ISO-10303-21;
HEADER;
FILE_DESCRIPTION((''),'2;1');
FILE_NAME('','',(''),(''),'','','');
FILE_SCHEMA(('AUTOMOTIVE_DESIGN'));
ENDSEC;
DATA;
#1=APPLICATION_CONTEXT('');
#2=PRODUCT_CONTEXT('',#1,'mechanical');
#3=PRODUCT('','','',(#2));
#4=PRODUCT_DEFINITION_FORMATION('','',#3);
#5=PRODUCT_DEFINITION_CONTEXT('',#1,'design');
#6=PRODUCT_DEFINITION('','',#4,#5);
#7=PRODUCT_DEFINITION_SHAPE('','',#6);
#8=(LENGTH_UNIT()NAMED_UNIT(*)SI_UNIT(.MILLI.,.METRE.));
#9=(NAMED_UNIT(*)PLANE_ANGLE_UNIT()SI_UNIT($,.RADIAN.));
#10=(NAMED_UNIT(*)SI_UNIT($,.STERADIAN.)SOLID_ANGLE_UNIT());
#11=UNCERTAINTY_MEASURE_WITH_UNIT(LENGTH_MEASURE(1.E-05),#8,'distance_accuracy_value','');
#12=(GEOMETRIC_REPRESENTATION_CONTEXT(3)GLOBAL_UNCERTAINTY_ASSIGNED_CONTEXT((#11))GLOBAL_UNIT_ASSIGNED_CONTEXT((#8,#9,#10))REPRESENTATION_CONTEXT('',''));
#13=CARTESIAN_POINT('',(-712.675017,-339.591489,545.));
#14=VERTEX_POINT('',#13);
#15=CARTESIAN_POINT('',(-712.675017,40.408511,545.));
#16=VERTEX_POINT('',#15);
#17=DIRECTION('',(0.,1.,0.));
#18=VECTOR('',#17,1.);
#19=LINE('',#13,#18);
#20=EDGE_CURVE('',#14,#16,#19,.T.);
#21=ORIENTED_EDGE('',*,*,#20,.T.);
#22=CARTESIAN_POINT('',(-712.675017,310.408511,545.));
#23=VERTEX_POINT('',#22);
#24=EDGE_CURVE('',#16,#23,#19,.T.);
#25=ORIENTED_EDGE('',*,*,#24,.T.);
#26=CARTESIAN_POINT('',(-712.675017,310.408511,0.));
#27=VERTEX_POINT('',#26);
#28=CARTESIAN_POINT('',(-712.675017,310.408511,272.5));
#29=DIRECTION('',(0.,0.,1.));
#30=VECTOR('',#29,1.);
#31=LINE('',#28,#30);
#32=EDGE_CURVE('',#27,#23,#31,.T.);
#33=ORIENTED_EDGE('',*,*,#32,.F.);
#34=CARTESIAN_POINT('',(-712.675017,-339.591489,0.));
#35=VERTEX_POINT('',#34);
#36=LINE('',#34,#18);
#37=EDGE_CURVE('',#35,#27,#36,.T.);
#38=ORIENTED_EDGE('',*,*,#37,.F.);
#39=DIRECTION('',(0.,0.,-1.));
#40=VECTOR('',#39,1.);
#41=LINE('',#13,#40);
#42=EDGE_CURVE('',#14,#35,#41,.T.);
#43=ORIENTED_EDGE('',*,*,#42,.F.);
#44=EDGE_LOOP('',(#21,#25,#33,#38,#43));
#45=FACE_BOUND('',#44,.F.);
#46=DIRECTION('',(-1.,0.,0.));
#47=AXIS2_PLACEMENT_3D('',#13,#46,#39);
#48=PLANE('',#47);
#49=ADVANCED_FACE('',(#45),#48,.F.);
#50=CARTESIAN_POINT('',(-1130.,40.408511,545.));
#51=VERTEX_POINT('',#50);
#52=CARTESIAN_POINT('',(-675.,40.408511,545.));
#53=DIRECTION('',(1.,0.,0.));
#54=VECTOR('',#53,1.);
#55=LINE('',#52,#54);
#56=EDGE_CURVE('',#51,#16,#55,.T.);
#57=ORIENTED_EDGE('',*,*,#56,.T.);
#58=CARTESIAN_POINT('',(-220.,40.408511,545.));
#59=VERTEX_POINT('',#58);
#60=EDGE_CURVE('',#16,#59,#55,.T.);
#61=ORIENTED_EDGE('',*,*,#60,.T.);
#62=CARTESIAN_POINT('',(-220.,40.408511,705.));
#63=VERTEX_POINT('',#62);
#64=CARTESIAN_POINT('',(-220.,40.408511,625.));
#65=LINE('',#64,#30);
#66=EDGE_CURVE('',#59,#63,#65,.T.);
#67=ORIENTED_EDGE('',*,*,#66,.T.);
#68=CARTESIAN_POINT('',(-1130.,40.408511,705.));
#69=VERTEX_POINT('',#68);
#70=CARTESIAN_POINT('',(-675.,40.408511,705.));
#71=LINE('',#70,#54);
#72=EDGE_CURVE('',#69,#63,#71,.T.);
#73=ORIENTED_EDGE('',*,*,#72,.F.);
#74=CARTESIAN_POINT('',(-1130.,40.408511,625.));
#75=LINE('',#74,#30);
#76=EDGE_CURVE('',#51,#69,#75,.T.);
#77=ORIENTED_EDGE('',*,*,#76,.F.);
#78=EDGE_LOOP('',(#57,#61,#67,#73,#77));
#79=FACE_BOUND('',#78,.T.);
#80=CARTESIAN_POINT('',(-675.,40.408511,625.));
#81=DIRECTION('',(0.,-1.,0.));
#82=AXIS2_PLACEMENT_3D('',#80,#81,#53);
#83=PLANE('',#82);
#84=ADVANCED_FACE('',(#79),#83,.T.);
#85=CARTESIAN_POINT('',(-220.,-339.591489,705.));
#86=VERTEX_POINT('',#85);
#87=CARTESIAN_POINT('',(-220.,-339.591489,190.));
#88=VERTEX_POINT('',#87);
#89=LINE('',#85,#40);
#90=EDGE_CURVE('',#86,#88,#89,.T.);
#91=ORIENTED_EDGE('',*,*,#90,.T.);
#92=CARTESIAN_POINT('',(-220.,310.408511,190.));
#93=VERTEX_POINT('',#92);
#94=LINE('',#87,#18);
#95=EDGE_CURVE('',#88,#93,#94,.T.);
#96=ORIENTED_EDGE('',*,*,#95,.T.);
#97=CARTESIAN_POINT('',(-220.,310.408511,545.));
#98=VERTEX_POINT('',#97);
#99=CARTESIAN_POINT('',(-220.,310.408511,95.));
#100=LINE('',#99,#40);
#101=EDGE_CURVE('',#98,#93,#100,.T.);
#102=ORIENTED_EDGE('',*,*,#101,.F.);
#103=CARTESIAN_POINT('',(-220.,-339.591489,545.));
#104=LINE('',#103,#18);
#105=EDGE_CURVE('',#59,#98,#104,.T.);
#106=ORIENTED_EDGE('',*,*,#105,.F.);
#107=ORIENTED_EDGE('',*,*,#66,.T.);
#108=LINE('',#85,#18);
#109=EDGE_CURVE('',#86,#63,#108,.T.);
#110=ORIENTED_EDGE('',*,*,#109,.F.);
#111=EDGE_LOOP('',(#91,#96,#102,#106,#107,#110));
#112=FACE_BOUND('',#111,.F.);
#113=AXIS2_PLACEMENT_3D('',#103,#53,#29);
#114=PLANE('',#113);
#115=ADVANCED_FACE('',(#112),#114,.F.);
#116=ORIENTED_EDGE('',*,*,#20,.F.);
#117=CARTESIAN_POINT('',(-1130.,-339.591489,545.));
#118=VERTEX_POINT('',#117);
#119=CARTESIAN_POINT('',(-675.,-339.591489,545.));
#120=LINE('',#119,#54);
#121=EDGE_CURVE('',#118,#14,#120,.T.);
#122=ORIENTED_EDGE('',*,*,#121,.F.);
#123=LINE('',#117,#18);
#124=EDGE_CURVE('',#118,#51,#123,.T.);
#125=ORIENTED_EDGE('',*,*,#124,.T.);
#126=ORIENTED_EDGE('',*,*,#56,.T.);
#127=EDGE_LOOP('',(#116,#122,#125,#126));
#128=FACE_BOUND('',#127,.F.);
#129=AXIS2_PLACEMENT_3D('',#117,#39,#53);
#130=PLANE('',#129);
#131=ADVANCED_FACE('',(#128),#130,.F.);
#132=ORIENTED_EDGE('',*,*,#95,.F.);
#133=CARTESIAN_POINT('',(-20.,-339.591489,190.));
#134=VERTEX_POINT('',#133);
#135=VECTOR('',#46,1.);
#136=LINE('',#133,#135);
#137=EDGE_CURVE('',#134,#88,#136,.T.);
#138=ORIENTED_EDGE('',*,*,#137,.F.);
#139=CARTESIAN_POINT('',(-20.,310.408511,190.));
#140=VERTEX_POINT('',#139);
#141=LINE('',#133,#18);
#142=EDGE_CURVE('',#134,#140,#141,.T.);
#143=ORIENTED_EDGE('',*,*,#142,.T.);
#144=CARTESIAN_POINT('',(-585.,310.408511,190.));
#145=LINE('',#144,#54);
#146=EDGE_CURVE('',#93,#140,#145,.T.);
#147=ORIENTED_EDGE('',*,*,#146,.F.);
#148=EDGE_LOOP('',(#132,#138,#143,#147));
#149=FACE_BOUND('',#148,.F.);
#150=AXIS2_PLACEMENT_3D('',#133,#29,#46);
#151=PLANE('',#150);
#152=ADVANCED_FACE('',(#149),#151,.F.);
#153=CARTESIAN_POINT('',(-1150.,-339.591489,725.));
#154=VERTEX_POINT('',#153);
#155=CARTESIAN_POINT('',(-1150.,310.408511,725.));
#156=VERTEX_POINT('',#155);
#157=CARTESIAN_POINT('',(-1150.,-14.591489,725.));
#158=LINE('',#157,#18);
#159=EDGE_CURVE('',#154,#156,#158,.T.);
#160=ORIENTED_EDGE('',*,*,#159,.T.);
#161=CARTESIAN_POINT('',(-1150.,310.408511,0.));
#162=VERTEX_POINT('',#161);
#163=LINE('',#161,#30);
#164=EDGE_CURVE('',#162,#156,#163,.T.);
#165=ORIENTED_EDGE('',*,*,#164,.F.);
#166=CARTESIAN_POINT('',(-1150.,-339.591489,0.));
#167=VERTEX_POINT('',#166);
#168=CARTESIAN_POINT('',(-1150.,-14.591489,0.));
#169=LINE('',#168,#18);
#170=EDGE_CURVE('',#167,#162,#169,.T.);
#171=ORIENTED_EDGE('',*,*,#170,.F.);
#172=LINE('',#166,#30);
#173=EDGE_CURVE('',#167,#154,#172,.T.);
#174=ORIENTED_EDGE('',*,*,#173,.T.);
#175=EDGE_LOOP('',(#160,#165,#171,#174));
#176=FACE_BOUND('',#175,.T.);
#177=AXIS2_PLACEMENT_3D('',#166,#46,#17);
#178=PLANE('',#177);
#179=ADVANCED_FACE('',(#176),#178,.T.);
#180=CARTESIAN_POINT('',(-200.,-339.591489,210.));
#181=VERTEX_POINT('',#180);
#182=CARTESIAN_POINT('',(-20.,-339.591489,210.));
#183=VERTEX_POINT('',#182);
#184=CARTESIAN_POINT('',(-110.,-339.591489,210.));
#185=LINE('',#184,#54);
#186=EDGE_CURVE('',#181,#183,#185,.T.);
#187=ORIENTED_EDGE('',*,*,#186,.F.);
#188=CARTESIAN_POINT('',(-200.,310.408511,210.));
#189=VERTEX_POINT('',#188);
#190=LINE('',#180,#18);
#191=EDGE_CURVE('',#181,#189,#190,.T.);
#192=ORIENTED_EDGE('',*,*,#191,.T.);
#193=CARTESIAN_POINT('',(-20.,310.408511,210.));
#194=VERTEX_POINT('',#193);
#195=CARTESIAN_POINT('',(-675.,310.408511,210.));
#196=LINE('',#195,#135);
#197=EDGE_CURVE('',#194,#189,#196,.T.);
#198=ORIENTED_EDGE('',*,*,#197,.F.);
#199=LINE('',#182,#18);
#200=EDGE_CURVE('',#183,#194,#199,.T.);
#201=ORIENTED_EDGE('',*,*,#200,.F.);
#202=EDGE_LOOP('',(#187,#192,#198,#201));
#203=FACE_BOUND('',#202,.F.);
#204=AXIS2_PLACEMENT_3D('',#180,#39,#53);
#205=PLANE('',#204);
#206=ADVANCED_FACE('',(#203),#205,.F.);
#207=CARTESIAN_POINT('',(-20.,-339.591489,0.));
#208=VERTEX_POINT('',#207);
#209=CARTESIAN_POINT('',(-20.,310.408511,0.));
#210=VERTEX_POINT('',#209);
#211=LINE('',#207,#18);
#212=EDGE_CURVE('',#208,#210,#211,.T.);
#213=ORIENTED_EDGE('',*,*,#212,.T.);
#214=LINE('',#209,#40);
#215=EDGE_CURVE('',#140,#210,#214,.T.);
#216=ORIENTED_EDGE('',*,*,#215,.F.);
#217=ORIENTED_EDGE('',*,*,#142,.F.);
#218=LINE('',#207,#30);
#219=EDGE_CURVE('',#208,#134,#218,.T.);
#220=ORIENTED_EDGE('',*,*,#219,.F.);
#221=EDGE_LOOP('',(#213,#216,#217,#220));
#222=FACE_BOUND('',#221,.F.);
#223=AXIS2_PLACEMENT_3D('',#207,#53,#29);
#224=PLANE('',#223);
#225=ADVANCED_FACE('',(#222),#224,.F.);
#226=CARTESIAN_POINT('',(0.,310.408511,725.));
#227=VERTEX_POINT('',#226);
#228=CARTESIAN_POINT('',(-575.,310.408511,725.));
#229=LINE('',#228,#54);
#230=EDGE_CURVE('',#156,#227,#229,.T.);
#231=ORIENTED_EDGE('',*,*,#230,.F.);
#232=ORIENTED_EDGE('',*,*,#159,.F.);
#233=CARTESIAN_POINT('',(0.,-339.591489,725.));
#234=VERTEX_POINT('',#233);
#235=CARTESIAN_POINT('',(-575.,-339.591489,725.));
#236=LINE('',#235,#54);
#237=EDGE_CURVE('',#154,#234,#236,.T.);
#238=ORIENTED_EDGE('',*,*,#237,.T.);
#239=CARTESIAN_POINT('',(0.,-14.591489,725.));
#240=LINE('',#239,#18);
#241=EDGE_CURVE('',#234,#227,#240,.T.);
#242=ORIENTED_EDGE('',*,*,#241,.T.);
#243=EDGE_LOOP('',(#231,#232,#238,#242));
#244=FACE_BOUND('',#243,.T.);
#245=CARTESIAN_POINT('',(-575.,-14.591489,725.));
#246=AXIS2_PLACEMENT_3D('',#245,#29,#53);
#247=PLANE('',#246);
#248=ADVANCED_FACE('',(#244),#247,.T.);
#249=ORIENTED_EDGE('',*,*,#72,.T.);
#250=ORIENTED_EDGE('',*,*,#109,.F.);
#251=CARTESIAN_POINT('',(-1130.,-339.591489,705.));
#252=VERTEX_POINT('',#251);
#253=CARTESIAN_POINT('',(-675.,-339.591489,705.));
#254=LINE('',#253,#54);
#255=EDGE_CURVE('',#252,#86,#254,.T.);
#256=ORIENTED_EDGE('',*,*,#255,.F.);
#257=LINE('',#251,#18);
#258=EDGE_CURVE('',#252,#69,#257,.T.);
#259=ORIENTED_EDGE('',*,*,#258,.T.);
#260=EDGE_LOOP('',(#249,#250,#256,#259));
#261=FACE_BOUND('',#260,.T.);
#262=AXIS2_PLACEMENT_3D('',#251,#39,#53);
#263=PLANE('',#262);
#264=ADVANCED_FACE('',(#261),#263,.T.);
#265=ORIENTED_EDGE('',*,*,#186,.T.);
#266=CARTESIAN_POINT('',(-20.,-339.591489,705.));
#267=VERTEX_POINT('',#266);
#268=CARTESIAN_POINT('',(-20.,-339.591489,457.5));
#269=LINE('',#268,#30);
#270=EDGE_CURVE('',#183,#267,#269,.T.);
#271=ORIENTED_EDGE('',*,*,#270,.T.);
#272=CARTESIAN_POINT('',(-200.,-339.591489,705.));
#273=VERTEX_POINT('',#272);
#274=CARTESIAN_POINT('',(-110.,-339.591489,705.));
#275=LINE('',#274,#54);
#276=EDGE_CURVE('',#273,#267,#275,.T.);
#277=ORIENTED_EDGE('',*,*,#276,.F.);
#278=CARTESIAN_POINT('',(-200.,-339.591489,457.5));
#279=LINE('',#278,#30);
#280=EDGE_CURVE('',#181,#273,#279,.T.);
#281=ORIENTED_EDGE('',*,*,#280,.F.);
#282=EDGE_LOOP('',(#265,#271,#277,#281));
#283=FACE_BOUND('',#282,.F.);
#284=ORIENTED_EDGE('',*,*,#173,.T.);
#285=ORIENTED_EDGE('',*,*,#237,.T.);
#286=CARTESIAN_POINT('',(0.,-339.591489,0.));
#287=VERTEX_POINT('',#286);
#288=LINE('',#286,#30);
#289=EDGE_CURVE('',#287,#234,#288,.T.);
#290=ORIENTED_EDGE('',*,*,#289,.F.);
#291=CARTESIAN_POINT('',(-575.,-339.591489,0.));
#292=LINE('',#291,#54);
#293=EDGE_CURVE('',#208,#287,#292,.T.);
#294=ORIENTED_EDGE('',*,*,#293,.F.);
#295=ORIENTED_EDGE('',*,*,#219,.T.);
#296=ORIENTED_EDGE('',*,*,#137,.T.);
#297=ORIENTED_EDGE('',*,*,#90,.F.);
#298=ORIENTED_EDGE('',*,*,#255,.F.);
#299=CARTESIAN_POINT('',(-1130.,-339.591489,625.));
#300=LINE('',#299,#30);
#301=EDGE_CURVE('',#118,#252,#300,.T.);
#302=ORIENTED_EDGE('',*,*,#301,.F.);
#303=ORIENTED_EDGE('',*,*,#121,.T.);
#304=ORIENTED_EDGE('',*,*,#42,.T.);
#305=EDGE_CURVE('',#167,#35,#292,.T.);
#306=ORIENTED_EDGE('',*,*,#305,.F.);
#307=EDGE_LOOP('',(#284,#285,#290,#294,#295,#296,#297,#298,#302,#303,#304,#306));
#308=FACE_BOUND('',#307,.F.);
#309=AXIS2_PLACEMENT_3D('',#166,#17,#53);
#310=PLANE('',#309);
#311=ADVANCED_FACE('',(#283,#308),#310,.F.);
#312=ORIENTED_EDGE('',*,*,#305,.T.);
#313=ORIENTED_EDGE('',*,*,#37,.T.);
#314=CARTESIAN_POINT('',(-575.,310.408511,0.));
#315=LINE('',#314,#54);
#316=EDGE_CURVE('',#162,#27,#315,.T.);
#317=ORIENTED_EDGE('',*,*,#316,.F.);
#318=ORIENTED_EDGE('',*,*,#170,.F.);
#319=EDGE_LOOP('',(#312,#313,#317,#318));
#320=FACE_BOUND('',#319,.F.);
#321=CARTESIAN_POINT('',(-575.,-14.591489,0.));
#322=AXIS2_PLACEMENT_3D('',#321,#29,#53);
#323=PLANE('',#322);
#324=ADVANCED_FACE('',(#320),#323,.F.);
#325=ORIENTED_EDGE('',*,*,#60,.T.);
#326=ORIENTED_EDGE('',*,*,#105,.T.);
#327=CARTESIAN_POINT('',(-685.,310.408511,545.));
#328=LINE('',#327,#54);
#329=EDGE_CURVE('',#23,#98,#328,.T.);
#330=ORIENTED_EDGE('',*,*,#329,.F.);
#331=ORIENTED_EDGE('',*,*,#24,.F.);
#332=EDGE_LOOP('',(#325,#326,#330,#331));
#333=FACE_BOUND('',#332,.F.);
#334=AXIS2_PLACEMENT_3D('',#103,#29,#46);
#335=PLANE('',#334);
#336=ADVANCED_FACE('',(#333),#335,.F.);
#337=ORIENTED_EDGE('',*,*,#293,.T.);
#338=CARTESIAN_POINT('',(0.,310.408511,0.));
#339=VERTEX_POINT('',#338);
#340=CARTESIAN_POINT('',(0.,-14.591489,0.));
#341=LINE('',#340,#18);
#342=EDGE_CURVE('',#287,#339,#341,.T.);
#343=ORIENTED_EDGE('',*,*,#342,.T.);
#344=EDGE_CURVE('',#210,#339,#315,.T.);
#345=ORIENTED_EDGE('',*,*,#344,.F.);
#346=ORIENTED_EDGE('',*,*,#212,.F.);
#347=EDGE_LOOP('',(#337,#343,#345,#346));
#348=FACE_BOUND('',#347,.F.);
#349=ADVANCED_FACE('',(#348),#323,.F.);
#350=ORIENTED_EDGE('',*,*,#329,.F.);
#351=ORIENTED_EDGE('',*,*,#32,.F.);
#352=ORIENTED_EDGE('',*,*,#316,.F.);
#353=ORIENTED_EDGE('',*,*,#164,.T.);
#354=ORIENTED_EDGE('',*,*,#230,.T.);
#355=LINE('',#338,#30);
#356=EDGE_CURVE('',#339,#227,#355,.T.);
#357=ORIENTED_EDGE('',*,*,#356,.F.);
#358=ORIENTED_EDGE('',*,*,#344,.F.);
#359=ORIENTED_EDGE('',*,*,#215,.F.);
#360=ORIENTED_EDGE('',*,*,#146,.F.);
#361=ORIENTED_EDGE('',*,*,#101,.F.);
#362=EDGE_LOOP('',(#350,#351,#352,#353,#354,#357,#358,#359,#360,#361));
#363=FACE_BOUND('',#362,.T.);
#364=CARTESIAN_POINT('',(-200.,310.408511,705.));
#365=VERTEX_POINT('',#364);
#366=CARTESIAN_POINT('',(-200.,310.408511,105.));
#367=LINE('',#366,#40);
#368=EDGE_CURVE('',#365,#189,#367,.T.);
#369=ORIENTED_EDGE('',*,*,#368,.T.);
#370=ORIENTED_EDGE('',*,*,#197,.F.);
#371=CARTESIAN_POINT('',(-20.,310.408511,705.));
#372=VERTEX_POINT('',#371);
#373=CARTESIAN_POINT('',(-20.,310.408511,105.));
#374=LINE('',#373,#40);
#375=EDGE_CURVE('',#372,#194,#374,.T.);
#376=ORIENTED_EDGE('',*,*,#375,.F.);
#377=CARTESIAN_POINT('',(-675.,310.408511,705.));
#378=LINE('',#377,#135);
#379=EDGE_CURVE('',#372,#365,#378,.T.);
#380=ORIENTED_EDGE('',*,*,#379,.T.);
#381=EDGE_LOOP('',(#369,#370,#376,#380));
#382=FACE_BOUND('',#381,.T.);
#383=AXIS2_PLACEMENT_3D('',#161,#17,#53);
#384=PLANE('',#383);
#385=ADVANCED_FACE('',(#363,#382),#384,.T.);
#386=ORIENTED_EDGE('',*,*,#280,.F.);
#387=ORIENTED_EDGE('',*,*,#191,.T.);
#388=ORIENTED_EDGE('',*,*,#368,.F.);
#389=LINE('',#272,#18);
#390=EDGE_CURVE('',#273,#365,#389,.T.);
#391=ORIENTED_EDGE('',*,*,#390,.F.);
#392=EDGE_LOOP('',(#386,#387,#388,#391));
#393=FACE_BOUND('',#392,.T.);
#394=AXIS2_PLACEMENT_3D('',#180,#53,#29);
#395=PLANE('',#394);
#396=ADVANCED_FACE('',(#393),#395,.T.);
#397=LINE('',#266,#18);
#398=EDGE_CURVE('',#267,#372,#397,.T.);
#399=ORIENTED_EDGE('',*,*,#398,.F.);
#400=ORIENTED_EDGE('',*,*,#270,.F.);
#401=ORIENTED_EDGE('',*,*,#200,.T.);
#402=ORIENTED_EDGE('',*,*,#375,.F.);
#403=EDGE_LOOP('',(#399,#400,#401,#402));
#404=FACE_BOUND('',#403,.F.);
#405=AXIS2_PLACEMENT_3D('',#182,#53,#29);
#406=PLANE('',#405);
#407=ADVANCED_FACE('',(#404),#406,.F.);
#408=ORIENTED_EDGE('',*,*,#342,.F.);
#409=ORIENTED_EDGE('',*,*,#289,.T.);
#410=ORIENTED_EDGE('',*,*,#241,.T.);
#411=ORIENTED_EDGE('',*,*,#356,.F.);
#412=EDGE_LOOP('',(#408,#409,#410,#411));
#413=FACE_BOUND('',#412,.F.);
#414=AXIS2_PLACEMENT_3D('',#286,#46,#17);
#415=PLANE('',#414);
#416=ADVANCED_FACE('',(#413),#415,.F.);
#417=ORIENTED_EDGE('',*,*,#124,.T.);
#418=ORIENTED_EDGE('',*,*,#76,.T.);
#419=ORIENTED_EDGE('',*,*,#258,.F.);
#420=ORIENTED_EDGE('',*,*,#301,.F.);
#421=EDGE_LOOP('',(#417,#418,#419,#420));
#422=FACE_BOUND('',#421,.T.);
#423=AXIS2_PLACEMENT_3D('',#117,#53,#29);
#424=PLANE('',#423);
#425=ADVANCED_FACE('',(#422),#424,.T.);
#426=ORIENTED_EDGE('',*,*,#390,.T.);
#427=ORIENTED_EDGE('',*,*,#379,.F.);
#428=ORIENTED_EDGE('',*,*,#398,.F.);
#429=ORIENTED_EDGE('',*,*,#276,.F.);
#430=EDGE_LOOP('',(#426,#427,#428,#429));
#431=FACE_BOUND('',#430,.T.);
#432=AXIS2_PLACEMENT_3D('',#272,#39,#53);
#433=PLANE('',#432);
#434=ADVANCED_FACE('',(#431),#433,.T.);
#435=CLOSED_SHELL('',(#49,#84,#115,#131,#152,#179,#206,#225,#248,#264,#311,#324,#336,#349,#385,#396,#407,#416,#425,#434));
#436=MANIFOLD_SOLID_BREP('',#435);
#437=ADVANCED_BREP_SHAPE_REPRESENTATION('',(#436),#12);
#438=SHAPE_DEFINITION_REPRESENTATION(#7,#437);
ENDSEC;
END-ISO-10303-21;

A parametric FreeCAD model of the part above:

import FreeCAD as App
import Part
import Sketcher
Q = App.Units.Quantity


def add_polygon(sketch, points):
    """Adds a closed chain of lines whose ends are joined by coincident constraints."""
    first, n = sketch.GeometryCount, len(points)
    for a, b in zip(points, points[1:] + points[:1]):
        sketch.addGeometry(Part.LineSegment(App.Vector(*a, 0), App.Vector(*b, 0)), False)
    for i in range(n):
        sketch.addConstraint(Sketcher.Constraint("Coincident", first + i, 2, first + (i + 1) % n, 1))

doc = App.newDocument("Part")
body = doc.addObject("PartDesign::Body", "Body")

sketch1 = body.newObject("Sketcher::SketchObject", "Sketch")
sketch1.AttachmentSupport = (doc.getObject("XY_Plane"), [""])
sketch1.MapMode = "FlatFace"
add_polygon(sketch1, [(-1150, 310), (-1150, -340), (0, -340), (0, 310)])
sketch1.addConstraint([
    Sketcher.Constraint("Vertical", 0),
    Sketcher.Constraint("Horizontal", 1),
    Sketcher.Constraint("Vertical", 2),
    Sketcher.Constraint("Horizontal", 3),
    Sketcher.Constraint("PointOnObject", 1, 2, -2),
    Sketcher.Constraint("DistanceX", 1, 1, 1, 2, Q("1150 mm")),
    Sketcher.Constraint("DistanceY", 0, 2, 0, 1, Q("650 mm")),
    Sketcher.Constraint("DistanceY", 0, 2, -1, 1, Q("339.591489 mm")),
])
pad1 = body.newObject("PartDesign::Pad", "Pad")
pad1.Profile = sketch1
pad1.Length = 725

sketch2 = body.newObject("Sketcher::SketchObject", "Sketch001")
sketch2.AttachmentSupport = (doc.getObject("XZ_Plane"), [""])
sketch2.MapMode = "FlatFace"
sketch2.AttachmentOffset = App.Placement(App.Vector(0, 0, 339.591489), App.Rotation())
add_polygon(sketch2, [(-200, 705), (-200, 210), (-20, 210), (-20, 705)])
sketch2.addConstraint([
    Sketcher.Constraint("Vertical", 0),
    Sketcher.Constraint("Horizontal", 1),
    Sketcher.Constraint("Vertical", 2),
    Sketcher.Constraint("Horizontal", 3),
    Sketcher.Constraint("DistanceX", 1, 1, 1, 2, Q("180 mm")),
    Sketcher.Constraint("DistanceY", 0, 2, 0, 1, Q("495 mm")),
    Sketcher.Constraint("DistanceX", 0, 2, -1, 1, Q("200 mm")),
    Sketcher.Constraint("DistanceY", -1, 1, 0, 2, Q("210 mm")),
])
pocket1 = body.newObject("PartDesign::Pocket", "Pocket")
pocket1.Profile = sketch2
pocket1.Type = "ThroughAll"

sketch3 = body.newObject("Sketcher::SketchObject", "Sketch002")
sketch3.AttachmentSupport = (doc.getObject("XZ_Plane"), [""])
sketch3.MapMode = "FlatFace"
sketch3.AttachmentOffset = App.Placement(App.Vector(0, 0, 339.591489), App.Rotation())
add_polygon(sketch3, [(-220, 545), (-713, 545), (-713, 0), (-20, 0), (-20, 190), (-220, 190)])
sketch3.addConstraint([
    Sketcher.Constraint("Horizontal", 0),
    Sketcher.Constraint("Vertical", 1),
    Sketcher.Constraint("Horizontal", 2),
    Sketcher.Constraint("Vertical", 3),
    Sketcher.Constraint("Horizontal", 4),
    Sketcher.Constraint("Vertical", 5),
    Sketcher.Constraint("PointOnObject", 1, 2, -1),
    Sketcher.Constraint("DistanceX", 4, 2, 4, 1, Q("200 mm")),
    Sketcher.Constraint("DistanceY", 1, 2, 1, 1, Q("545 mm")),
    Sketcher.Constraint("DistanceY", 3, 1, 3, 2, Q("190 mm")),
    Sketcher.Constraint("DistanceX", 2, 2, -1, 1, Q("20 mm")),
    Sketcher.Constraint("DistanceX", 0, 2, 0, 1, Q("492.675017 mm")),
])
pocket2 = body.newObject("PartDesign::Pocket", "Pocket001")
pocket2.Profile = sketch3
pocket2.Type = "ThroughAll"

sketch4 = body.newObject("Sketcher::SketchObject", "Sketch003")
sketch4.AttachmentSupport = (doc.getObject("XZ_Plane"), [""])
sketch4.MapMode = "FlatFace"
sketch4.AttachmentOffset = App.Placement(App.Vector(0, 0, 339.591489), App.Rotation())
add_polygon(sketch4, [(-1130, 705), (-1130, 545), (-220, 545), (-220, 705)])
sketch4.addConstraint([
    Sketcher.Constraint("Vertical", 0),
    Sketcher.Constraint("Horizontal", 1),
    Sketcher.Constraint("Vertical", 2),
    Sketcher.Constraint("Horizontal", 3),
    Sketcher.Constraint("DistanceX", 1, 1, 1, 2, Q("910 mm")),
    Sketcher.Constraint("DistanceY", 0, 2, 0, 1, Q("160 mm")),
    Sketcher.Constraint("DistanceX", 0, 2, -1, 1, Q("1130 mm")),
    Sketcher.Constraint("DistanceY", -1, 1, 0, 2, Q("545 mm")),
])
pocket3 = body.newObject("PartDesign::Pocket", "Pocket002")
pocket3.Profile = sketch4
pocket3.Length = 380

doc.recompute()
